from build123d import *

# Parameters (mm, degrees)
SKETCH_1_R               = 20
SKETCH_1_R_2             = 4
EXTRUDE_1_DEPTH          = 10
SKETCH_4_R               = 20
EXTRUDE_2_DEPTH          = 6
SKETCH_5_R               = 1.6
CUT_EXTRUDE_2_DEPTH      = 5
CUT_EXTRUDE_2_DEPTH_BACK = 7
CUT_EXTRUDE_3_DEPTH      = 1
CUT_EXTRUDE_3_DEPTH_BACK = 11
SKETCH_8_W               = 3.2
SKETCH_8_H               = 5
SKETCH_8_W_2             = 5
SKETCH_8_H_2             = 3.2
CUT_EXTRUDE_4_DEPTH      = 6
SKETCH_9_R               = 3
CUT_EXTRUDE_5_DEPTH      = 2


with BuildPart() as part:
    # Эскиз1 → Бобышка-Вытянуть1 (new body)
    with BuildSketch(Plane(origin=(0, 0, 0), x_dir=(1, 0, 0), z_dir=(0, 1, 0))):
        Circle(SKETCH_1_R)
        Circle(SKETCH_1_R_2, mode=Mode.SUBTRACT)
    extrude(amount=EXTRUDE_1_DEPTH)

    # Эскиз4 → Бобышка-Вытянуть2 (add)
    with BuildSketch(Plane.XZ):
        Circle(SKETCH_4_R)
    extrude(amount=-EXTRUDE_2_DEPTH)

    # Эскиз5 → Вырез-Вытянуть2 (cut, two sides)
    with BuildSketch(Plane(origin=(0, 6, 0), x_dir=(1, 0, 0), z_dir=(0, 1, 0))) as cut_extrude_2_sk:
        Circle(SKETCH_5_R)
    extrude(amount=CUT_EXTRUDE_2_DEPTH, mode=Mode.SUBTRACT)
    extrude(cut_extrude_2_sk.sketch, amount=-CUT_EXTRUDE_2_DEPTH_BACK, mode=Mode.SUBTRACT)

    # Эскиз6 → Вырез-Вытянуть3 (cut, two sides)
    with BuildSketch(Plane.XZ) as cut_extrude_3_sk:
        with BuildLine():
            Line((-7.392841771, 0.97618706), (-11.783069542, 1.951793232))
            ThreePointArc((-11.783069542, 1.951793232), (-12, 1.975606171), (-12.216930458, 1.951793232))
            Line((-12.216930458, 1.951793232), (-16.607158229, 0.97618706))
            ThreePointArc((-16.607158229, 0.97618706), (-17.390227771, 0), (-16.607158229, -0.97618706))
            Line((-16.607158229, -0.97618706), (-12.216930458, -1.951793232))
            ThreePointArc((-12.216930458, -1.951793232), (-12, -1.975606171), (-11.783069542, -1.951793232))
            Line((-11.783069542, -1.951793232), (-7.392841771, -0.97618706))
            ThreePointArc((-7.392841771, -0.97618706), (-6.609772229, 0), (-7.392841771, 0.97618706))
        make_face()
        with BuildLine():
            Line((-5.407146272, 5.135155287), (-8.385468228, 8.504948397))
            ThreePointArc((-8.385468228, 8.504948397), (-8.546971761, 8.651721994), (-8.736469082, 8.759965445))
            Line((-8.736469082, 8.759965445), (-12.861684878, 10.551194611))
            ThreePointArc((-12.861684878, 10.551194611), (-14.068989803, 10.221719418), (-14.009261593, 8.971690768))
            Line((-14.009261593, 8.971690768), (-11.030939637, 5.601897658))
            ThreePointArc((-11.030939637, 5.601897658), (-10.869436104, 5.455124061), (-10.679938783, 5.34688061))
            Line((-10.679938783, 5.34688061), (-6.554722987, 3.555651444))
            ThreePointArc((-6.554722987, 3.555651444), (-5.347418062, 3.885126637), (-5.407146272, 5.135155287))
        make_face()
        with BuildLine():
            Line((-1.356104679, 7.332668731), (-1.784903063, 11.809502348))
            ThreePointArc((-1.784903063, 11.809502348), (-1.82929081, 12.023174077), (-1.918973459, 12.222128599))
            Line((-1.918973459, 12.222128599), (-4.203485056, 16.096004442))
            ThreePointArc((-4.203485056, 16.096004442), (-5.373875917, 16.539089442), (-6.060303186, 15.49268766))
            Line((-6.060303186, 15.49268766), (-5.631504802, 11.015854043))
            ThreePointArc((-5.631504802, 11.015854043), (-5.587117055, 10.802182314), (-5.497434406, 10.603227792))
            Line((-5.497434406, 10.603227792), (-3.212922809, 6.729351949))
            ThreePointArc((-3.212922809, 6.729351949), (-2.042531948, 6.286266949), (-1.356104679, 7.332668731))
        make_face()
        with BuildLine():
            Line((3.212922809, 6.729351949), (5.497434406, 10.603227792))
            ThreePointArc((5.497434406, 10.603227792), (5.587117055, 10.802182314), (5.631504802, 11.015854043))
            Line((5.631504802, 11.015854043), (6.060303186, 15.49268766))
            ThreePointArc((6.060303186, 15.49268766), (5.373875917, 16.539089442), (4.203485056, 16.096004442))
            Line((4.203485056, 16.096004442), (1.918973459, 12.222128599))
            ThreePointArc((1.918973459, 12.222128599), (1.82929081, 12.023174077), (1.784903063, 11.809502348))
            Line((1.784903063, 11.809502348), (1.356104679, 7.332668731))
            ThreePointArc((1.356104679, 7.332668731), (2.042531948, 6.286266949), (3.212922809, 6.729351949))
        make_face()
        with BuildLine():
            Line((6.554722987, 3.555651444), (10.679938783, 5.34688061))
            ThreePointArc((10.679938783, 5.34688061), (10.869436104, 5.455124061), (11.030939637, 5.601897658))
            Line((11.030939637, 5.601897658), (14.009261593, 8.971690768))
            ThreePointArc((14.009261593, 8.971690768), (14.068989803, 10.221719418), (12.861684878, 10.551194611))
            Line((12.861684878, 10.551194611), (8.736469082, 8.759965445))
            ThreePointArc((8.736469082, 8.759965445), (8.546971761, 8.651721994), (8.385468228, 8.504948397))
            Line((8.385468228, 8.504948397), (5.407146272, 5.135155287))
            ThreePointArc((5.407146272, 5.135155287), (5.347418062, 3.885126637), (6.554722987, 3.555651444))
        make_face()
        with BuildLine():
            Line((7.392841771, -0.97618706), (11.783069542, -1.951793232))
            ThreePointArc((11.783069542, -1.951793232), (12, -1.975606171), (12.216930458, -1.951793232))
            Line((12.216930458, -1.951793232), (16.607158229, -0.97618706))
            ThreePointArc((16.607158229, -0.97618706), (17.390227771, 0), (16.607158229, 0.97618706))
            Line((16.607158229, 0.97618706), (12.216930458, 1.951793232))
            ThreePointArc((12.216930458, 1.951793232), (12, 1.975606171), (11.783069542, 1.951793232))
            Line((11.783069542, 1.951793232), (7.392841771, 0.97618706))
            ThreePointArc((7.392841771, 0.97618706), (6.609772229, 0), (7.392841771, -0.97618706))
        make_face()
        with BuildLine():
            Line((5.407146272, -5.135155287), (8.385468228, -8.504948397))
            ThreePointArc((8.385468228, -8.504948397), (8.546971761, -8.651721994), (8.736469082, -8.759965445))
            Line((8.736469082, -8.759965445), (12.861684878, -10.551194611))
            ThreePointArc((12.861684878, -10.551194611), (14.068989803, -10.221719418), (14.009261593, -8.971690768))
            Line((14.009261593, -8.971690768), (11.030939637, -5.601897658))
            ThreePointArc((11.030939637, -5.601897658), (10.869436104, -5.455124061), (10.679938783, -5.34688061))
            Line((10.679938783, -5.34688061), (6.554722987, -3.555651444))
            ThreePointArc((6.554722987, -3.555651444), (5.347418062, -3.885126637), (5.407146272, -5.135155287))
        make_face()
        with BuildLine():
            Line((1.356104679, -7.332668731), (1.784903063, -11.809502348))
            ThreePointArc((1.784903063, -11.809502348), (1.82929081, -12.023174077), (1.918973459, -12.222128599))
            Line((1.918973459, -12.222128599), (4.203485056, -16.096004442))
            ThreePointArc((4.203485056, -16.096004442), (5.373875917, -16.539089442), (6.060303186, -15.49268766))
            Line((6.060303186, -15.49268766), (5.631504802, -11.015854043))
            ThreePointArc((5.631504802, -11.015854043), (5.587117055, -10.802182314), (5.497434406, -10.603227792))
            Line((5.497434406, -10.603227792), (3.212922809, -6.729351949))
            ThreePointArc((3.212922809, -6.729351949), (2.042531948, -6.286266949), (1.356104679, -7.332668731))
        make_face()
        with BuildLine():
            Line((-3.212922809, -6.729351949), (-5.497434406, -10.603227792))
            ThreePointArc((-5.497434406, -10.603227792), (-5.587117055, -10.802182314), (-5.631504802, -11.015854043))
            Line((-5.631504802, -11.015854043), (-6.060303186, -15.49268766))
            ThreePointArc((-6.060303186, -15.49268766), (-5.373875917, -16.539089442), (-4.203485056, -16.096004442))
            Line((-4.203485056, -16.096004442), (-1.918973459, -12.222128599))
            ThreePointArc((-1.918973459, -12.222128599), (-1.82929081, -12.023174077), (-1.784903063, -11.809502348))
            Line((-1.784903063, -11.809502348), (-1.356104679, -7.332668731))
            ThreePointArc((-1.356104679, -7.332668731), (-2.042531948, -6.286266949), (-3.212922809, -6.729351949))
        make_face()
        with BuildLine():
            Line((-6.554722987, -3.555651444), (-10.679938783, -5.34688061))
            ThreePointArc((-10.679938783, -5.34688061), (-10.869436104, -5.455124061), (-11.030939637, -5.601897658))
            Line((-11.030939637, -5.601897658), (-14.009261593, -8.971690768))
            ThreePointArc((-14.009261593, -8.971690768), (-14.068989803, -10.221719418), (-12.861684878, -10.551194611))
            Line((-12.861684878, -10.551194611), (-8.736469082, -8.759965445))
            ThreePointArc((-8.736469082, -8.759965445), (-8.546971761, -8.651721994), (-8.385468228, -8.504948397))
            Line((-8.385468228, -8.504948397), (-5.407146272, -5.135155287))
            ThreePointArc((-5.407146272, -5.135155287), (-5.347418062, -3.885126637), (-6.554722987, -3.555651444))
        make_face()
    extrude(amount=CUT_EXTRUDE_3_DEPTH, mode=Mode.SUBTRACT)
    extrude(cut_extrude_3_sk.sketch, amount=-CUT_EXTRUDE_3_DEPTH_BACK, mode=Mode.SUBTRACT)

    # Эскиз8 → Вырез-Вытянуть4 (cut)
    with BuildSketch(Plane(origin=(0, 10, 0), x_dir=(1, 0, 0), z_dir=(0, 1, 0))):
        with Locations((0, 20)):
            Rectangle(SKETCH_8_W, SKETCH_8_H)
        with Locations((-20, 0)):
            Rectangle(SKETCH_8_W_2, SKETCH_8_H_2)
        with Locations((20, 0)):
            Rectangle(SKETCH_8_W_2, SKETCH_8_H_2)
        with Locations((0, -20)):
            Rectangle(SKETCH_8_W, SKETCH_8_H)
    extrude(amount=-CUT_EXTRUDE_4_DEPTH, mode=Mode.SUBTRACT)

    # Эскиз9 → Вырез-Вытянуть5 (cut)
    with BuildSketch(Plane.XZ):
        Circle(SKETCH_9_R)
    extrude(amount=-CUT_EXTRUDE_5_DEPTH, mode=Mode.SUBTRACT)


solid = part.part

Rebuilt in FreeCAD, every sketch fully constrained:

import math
import FreeCAD as App
import Part
import Sketcher
Q = App.Units.Quantity


def add_polygon(sketch, points):
    """Adds a closed chain of lines whose ends are joined by coincident constraints."""
    first, n = sketch.GeometryCount, len(points)
    for a, b in zip(points, points[1:] + points[:1]):
        sketch.addGeometry(Part.LineSegment(App.Vector(*a, 0), App.Vector(*b, 0)), False)
    for i in range(n):
        sketch.addConstraint(Sketcher.Constraint("Coincident", first + i, 2, first + (i + 1) % n, 1))

doc = App.newDocument("Part")
body = doc.addObject("PartDesign::Body", "Body")

# Sketch on XZ plane
sketch1 = body.newObject("Sketcher::SketchObject", "Sketch")
sketch1.AttachmentSupport = (doc.getObject("XZ_Plane"), [""])
sketch1.MapMode = "FlatFace"
sketch1.addGeometry(Part.Circle(App.Vector(0, 0, 0), App.Vector(0, 0, 1), 20), False)
sketch1.addGeometry(Part.Circle(App.Vector(0, 0, 0), App.Vector(0, 0, 1), 4), False)
sketch1.addConstraint(Sketcher.Constraint("Coincident", 0, 3, -1, 1))
sketch1.addConstraint(Sketcher.Constraint("Coincident", 1, 3, -1, 1))
sketch1.addConstraint(Sketcher.Constraint("Diameter", 0, Q("40 mm")))
sketch1.addConstraint(Sketcher.Constraint("Diameter", 1, Q("8 mm")))
pad1 = body.newObject("PartDesign::Pad", "Pad")
pad1.Profile = sketch1
pad1.Length = 10
pad1.Reversed = True

# Sketch on XZ plane
sketch2 = body.newObject("Sketcher::SketchObject", "Sketch001")
sketch2.AttachmentSupport = (doc.getObject("XZ_Plane"), [""])
sketch2.MapMode = "FlatFace"
sketch2.addGeometry(Part.Circle(App.Vector(0, 0, 0), App.Vector(0, 0, 1), 20), False)
sketch2.addConstraint(Sketcher.Constraint("Coincident", 0, 3, -1, 1))
sketch2.addConstraint(Sketcher.Constraint("Diameter", 0, Q("40 mm")))
pad2 = body.newObject("PartDesign::Pad", "Pad001")
pad2.Profile = sketch2
pad2.Length = 6
pad2.Reversed = True

# Sketch on XZ plane
sketch3 = body.newObject("Sketcher::SketchObject", "Sketch002")
sketch3.AttachmentSupport = (doc.getObject("XZ_Plane"), [""])
sketch3.MapMode = "FlatFace"
sketch3.AttachmentOffset = App.Placement(App.Vector(0, 0, -6), App.Rotation())
sketch3.addGeometry(Part.Circle(App.Vector(0, 0, 0), App.Vector(0, 0, 1), 1.6), False)
sketch3.addConstraint(Sketcher.Constraint("Coincident", 0, 3, -1, 1))
sketch3.addConstraint(Sketcher.Constraint("Diameter", 0, Q("3.2 mm")))
pocket1 = body.newObject("PartDesign::Pocket", "Pocket")
pocket1.Profile = sketch3
pocket1.Type = "ThroughAll"
pocket1.Midplane = True

# Sketch on XZ plane
sketch4 = body.newObject("Sketcher::SketchObject", "Sketch003")
sketch4.AttachmentSupport = (doc.getObject("XZ_Plane"), [""])
sketch4.MapMode = "FlatFace"
sketch4.addGeometry(Part.LineSegment(App.Vector(-7.39, 0.98, 0), App.Vector(-11.78, 1.95, 0)), False)
sketch4.addGeometry(Part.ArcOfCircle(Part.Circle(App.Vector(-12, 0.98, 0), App.Vector(0, 0, 1), 1), math.radians(77), math.radians(103)), False)
sketch4.addGeometry(Part.LineSegment(App.Vector(-12.22, 1.95, 0), App.Vector(-16.61, 0.98, 0)), False)
sketch4.addGeometry(Part.ArcOfCircle(Part.Circle(App.Vector(-16.39, 0, 0), App.Vector(0, 0, 1), 1), math.radians(103), math.radians(257)), False)
sketch4.addGeometry(Part.LineSegment(App.Vector(-16.61, -0.98, 0), App.Vector(-12.22, -1.95, 0)), False)
sketch4.addGeometry(Part.ArcOfCircle(Part.Circle(App.Vector(-12, -0.98, 0), App.Vector(0, 0, 1), 1), math.radians(-103), math.radians(-77)), False)
sketch4.addGeometry(Part.LineSegment(App.Vector(-11.78, -1.95, 0), App.Vector(-7.39, -0.98, 0)), False)
sketch4.addGeometry(Part.ArcOfCircle(Part.Circle(App.Vector(-7.61, 0, 0), App.Vector(0, 0, 1), 1), math.radians(-77), math.radians(77)), False)
sketch4.addGeometry(Part.LineSegment(App.Vector(-5.41, 5.14, 0), App.Vector(-8.39, 8.5, 0)), False)
sketch4.addGeometry(Part.ArcOfCircle(Part.Circle(App.Vector(-9.13, 7.84, 0), App.Vector(0, 0, 1), 1), math.radians(41), math.radians(67)), False)
sketch4.addGeometry(Part.LineSegment(App.Vector(-8.74, 8.76, 0), App.Vector(-12.86, 10.55, 0)), False)
sketch4.addGeometry(Part.ArcOfCircle(Part.Circle(App.Vector(-13.26, 9.63, 0), App.Vector(0, 0, 1), 1), math.radians(67), math.radians(221)), False)
sketch4.addGeometry(Part.LineSegment(App.Vector(-14.01, 8.97, 0), App.Vector(-11.03, 5.6, 0)), False)
sketch4.addGeometry(Part.ArcOfCircle(Part.Circle(App.Vector(-10.28, 6.26, 0), App.Vector(0, 0, 1), 1), math.radians(-139), math.radians(-113)), False)
sketch4.addGeometry(Part.LineSegment(App.Vector(-10.68, 5.35, 0), App.Vector(-6.55, 3.56, 0)), False)
sketch4.addGeometry(Part.ArcOfCircle(Part.Circle(App.Vector(-6.16, 4.47, 0), App.Vector(0, 0, 1), 1), math.radians(-113), math.radians(41)), False)
sketch4.addGeometry(Part.LineSegment(App.Vector(-1.36, 7.33, 0), App.Vector(-1.78, 11.81, 0)), False)
sketch4.addGeometry(Part.ArcOfCircle(Part.Circle(App.Vector(-2.78, 11.71, 0), App.Vector(0, 0, 1), 1), math.radians(5), math.radians(31)), False)
sketch4.addGeometry(Part.LineSegment(App.Vector(-1.92, 12.22, 0), App.Vector(-4.2, 16.1, 0)), False)
sketch4.addGeometry(Part.ArcOfCircle(Part.Circle(App.Vector(-5.06, 15.59, 0), App.Vector(0, 0, 1), 1), math.radians(31), math.radians(185)), False)
sketch4.addGeometry(Part.LineSegment(App.Vector(-6.06, 15.49, 0), App.Vector(-5.63, 11.02, 0)), False)
sketch4.addGeometry(Part.ArcOfCircle(Part.Circle(App.Vector(-4.64, 11.11, 0), App.Vector(0, 0, 1), 1), math.radians(-175), math.radians(-149)), False)
sketch4.addGeometry(Part.LineSegment(App.Vector(-5.5, 10.6, 0), App.Vector(-3.21, 6.73, 0)), False)
sketch4.addGeometry(Part.ArcOfCircle(Part.Circle(App.Vector(-2.35, 7.24, 0), App.Vector(0, 0, 1), 1), math.radians(-149), math.radians(5)), False)
sketch4.addGeometry(Part.LineSegment(App.Vector(3.21, 6.73, 0), App.Vector(5.5, 10.6, 0)), False)
sketch4.addGeometry(Part.ArcOfCircle(Part.Circle(App.Vector(4.64, 11.11, 0), App.Vector(0, 0, 1), 1), math.radians(-31), math.radians(-5)), False)
sketch4.addGeometry(Part.LineSegment(App.Vector(5.63, 11.02, 0), App.Vector(6.06, 15.49, 0)), False)
sketch4.addGeometry(Part.ArcOfCircle(Part.Circle(App.Vector(5.06, 15.59, 0), App.Vector(0, 0, 1), 1), math.radians(-5), math.radians(149)), False)
sketch4.addGeometry(Part.LineSegment(App.Vector(4.2, 16.1, 0), App.Vector(1.92, 12.22, 0)), False)
sketch4.addGeometry(Part.ArcOfCircle(Part.Circle(App.Vector(2.78, 11.71, 0), App.Vector(0, 0, 1), 1), math.radians(149), math.radians(175)), False)
sketch4.addGeometry(Part.LineSegment(App.Vector(1.78, 11.81, 0), App.Vector(1.36, 7.33, 0)), False)
sketch4.addGeometry(Part.ArcOfCircle(Part.Circle(App.Vector(2.35, 7.24, 0), App.Vector(0, 0, 1), 1), math.radians(175), math.radians(329)), False)
sketch4.addGeometry(Part.LineSegment(App.Vector(6.55, 3.56, 0), App.Vector(10.68, 5.35, 0)), False)
sketch4.addGeometry(Part.ArcOfCircle(Part.Circle(App.Vector(10.28, 6.26, 0), App.Vector(0, 0, 1), 1), math.radians(-67), math.radians(-41)), False)
sketch4.addGeometry(Part.LineSegment(App.Vector(11.03, 5.6, 0), App.Vector(14.01, 8.97, 0)), False)
sketch4.addGeometry(Part.ArcOfCircle(Part.Circle(App.Vector(13.26, 9.63, 0), App.Vector(0, 0, 1), 1), math.radians(-41), math.radians(113)), False)
sketch4.addGeometry(Part.LineSegment(App.Vector(12.86, 10.55, 0), App.Vector(8.74, 8.76, 0)), False)
sketch4.addGeometry(Part.ArcOfCircle(Part.Circle(App.Vector(9.13, 7.84, 0), App.Vector(0, 0, 1), 1), math.radians(113), math.radians(139)), False)
sketch4.addGeometry(Part.LineSegment(App.Vector(8.39, 8.5, 0), App.Vector(5.41, 5.14, 0)), False)
sketch4.addGeometry(Part.ArcOfCircle(Part.Circle(App.Vector(6.16, 4.47, 0), App.Vector(0, 0, 1), 1), math.radians(139), math.radians(293)), False)
sketch4.addGeometry(Part.LineSegment(App.Vector(7.39, -0.98, 0), App.Vector(11.78, -1.95, 0)), False)
sketch4.addGeometry(Part.ArcOfCircle(Part.Circle(App.Vector(12, -0.98, 0), App.Vector(0, 0, 1), 1), math.radians(-103), math.radians(-77)), False)
sketch4.addGeometry(Part.LineSegment(App.Vector(12.22, -1.95, 0), App.Vector(16.61, -0.98, 0)), False)
sketch4.addGeometry(Part.ArcOfCircle(Part.Circle(App.Vector(16.39, 0, 0), App.Vector(0, 0, 1), 1), math.radians(-77), math.radians(77)), False)
sketch4.addGeometry(Part.LineSegment(App.Vector(16.61, 0.98, 0), App.Vector(12.22, 1.95, 0)), False)
sketch4.addGeometry(Part.ArcOfCircle(Part.Circle(App.Vector(12, 0.98, 0), App.Vector(0, 0, 1), 1), math.radians(77), math.radians(103)), False)
sketch4.addGeometry(Part.LineSegment(App.Vector(11.78, 1.95, 0), App.Vector(7.39, 0.98, 0)), False)
sketch4.addGeometry(Part.ArcOfCircle(Part.Circle(App.Vector(7.61, 0, 0), App.Vector(0, 0, 1), 1), math.radians(103), math.radians(257)), False)
sketch4.addGeometry(Part.LineSegment(App.Vector(5.41, -5.14, 0), App.Vector(8.39, -8.5, 0)), False)
sketch4.addGeometry(Part.ArcOfCircle(Part.Circle(App.Vector(9.13, -7.84, 0), App.Vector(0, 0, 1), 1), math.radians(-139), math.radians(-113)), False)
sketch4.addGeometry(Part.LineSegment(App.Vector(8.74, -8.76, 0), App.Vector(12.86, -10.55, 0)), False)
sketch4.addGeometry(Part.ArcOfCircle(Part.Circle(App.Vector(13.26, -9.63, 0), App.Vector(0, 0, 1), 1), math.radians(-113), math.radians(41)), False)
sketch4.addGeometry(Part.LineSegment(App.Vector(14.01, -8.97, 0), App.Vector(11.03, -5.6, 0)), False)
sketch4.addGeometry(Part.ArcOfCircle(Part.Circle(App.Vector(10.28, -6.26, 0), App.Vector(0, 0, 1), 1), math.radians(41), math.radians(67)), False)
sketch4.addGeometry(Part.LineSegment(App.Vector(10.68, -5.35, 0), App.Vector(6.55, -3.56, 0)), False)
sketch4.addGeometry(Part.ArcOfCircle(Part.Circle(App.Vector(6.16, -4.47, 0), App.Vector(0, 0, 1), 1), math.radians(67), math.radians(221)), False)
sketch4.addGeometry(Part.LineSegment(App.Vector(1.36, -7.33, 0), App.Vector(1.78, -11.81, 0)), False)
sketch4.addGeometry(Part.ArcOfCircle(Part.Circle(App.Vector(2.78, -11.71, 0), App.Vector(0, 0, 1), 1), math.radians(-175), math.radians(-149)), False)
sketch4.addGeometry(Part.LineSegment(App.Vector(1.92, -12.22, 0), App.Vector(4.2, -16.1, 0)), False)
sketch4.addGeometry(Part.ArcOfCircle(Part.Circle(App.Vector(5.06, -15.59, 0), App.Vector(0, 0, 1), 1), math.radians(-149), math.radians(5)), False)
sketch4.addGeometry(Part.LineSegment(App.Vector(6.06, -15.49, 0), App.Vector(5.63, -11.02, 0)), False)
sketch4.addGeometry(Part.ArcOfCircle(Part.Circle(App.Vector(4.64, -11.11, 0), App.Vector(0, 0, 1), 1), math.radians(5), math.radians(31)), False)
sketch4.addGeometry(Part.LineSegment(App.Vector(5.5, -10.6, 0), App.Vector(3.21, -6.73, 0)), False)
sketch4.addGeometry(Part.ArcOfCircle(Part.Circle(App.Vector(2.35, -7.24, 0), App.Vector(0, 0, 1), 1), math.radians(31), math.radians(185)), False)
sketch4.addGeometry(Part.LineSegment(App.Vector(-3.21, -6.73, 0), App.Vector(-5.5, -10.6, 0)), False)
sketch4.addGeometry(Part.ArcOfCircle(Part.Circle(App.Vector(-4.64, -11.11, 0), App.Vector(0, 0, 1), 1), math.radians(149), math.radians(175)), False)
sketch4.addGeometry(Part.LineSegment(App.Vector(-5.63, -11.02, 0), App.Vector(-6.06, -15.49, 0)), False)
sketch4.addGeometry(Part.ArcOfCircle(Part.Circle(App.Vector(-5.06, -15.59, 0), App.Vector(0, 0, 1), 1), math.radians(175), math.radians(329)), False)
sketch4.addGeometry(Part.LineSegment(App.Vector(-4.2, -16.1, 0), App.Vector(-1.92, -12.22, 0)), False)
sketch4.addGeometry(Part.ArcOfCircle(Part.Circle(App.Vector(-2.78, -11.71, 0), App.Vector(0, 0, 1), 1), math.radians(-31), math.radians(-5)), False)
sketch4.addGeometry(Part.LineSegment(App.Vector(-1.78, -11.81, 0), App.Vector(-1.36, -7.33, 0)), False)
sketch4.addGeometry(Part.ArcOfCircle(Part.Circle(App.Vector(-2.35, -7.24, 0), App.Vector(0, 0, 1), 1), math.radians(-5), math.radians(149)), False)
sketch4.addGeometry(Part.LineSegment(App.Vector(-6.55, -3.56, 0), App.Vector(-10.68, -5.35, 0)), False)
sketch4.addGeometry(Part.ArcOfCircle(Part.Circle(App.Vector(-10.28, -6.26, 0), App.Vector(0, 0, 1), 1), math.radians(113), math.radians(139)), False)
sketch4.addGeometry(Part.LineSegment(App.Vector(-11.03, -5.6, 0), App.Vector(-14.01, -8.97, 0)), False)
sketch4.addGeometry(Part.ArcOfCircle(Part.Circle(App.Vector(-13.26, -9.63, 0), App.Vector(0, 0, 1), 1), math.radians(139), math.radians(293)), False)
sketch4.addGeometry(Part.LineSegment(App.Vector(-12.86, -10.55, 0), App.Vector(-8.74, -8.76, 0)), False)
sketch4.addGeometry(Part.ArcOfCircle(Part.Circle(App.Vector(-9.13, -7.84, 0), App.Vector(0, 0, 1), 1), math.radians(-67), math.radians(-41)), False)
sketch4.addGeometry(Part.LineSegment(App.Vector(-8.39, -8.5, 0), App.Vector(-5.41, -5.14, 0)), False)
sketch4.addGeometry(Part.ArcOfCircle(Part.Circle(App.Vector(-6.16, -4.47, 0), App.Vector(0, 0, 1), 1), math.radians(-41), math.radians(113)), False)
sketch4.addConstraint(Sketcher.Constraint("Tangent", 0, 2, 1, 1))
sketch4.addConstraint(Sketcher.Constraint("Tangent", 1, 2, 2, 1))
sketch4.addConstraint(Sketcher.Constraint("Tangent", 2, 2, 3, 1))
sketch4.addConstraint(Sketcher.Constraint("Tangent", 3, 2, 4, 1))
sketch4.addConstraint(Sketcher.Constraint("Tangent", 4, 2, 5, 1))
sketch4.addConstraint(Sketcher.Constraint("Tangent", 5, 2, 6, 1))
sketch4.addConstraint(Sketcher.Constraint("Tangent", 6, 2, 7, 1))
sketch4.addConstraint(Sketcher.Constraint("Tangent", 7, 2, 0, 1))
sketch4.addConstraint(Sketcher.Constraint("Tangent", 8, 2, 9, 1))
sketch4.addConstraint(Sketcher.Constraint("Tangent", 9, 2, 10, 1))
sketch4.addConstraint(Sketcher.Constraint("Tangent", 10, 2, 11, 1))
sketch4.addConstraint(Sketcher.Constraint("Tangent", 11, 2, 12, 1))
sketch4.addConstraint(Sketcher.Constraint("Tangent", 12, 2, 13, 1))
sketch4.addConstraint(Sketcher.Constraint("Tangent", 13, 2, 14, 1))
sketch4.addConstraint(Sketcher.Constraint("Tangent", 14, 2, 15, 1))
sketch4.addConstraint(Sketcher.Constraint("Tangent", 15, 2, 8, 1))
sketch4.addConstraint(Sketcher.Constraint("Tangent", 16, 2, 17, 1))
sketch4.addConstraint(Sketcher.Constraint("Tangent", 17, 2, 18, 1))
sketch4.addConstraint(Sketcher.Constraint("Tangent", 18, 2, 19, 1))
sketch4.addConstraint(Sketcher.Constraint("Tangent", 19, 2, 20, 1))
sketch4.addConstraint(Sketcher.Constraint("Tangent", 20, 2, 21, 1))
sketch4.addConstraint(Sketcher.Constraint("Tangent", 21, 2, 22, 1))
sketch4.addConstraint(Sketcher.Constraint("Tangent", 22, 2, 23, 1))
sketch4.addConstraint(Sketcher.Constraint("Tangent", 23, 2, 16, 1))
sketch4.addConstraint(Sketcher.Constraint("Tangent", 24, 2, 25, 1))
sketch4.addConstraint(Sketcher.Constraint("Tangent", 25, 2, 26, 1))
sketch4.addConstraint(Sketcher.Constraint("Tangent", 26, 2, 27, 1))
sketch4.addConstraint(Sketcher.Constraint("Tangent", 27, 2, 28, 1))
sketch4.addConstraint(Sketcher.Constraint("Tangent", 28, 2, 29, 1))
sketch4.addConstraint(Sketcher.Constraint("Tangent", 29, 2, 30, 1))
sketch4.addConstraint(Sketcher.Constraint("Tangent", 30, 2, 31, 1))
sketch4.addConstraint(Sketcher.Constraint("Tangent", 31, 2, 24, 1))
sketch4.addConstraint(Sketcher.Constraint("Tangent", 32, 2, 33, 1))
sketch4.addConstraint(Sketcher.Constraint("Tangent", 33, 2, 34, 1))
sketch4.addConstraint(Sketcher.Constraint("Tangent", 34, 2, 35, 1))
sketch4.addConstraint(Sketcher.Constraint("Tangent", 35, 2, 36, 1))
sketch4.addConstraint(Sketcher.Constraint("Tangent", 36, 2, 37, 1))
sketch4.addConstraint(Sketcher.Constraint("Tangent", 37, 2, 38, 1))
sketch4.addConstraint(Sketcher.Constraint("Tangent", 38, 2, 39, 1))
sketch4.addConstraint(Sketcher.Constraint("Tangent", 39, 2, 32, 1))
sketch4.addConstraint(Sketcher.Constraint("Tangent", 40, 2, 41, 1))
sketch4.addConstraint(Sketcher.Constraint("Tangent", 41, 2, 42, 1))
sketch4.addConstraint(Sketcher.Constraint("Tangent", 42, 2, 43, 1))
sketch4.addConstraint(Sketcher.Constraint("Tangent", 43, 2, 44, 1))
sketch4.addConstraint(Sketcher.Constraint("Tangent", 44, 2, 45, 1))
sketch4.addConstraint(Sketcher.Constraint("Tangent", 45, 2, 46, 1))
sketch4.addConstraint(Sketcher.Constraint("Tangent", 46, 2, 47, 1))
sketch4.addConstraint(Sketcher.Constraint("Tangent", 47, 2, 40, 1))
sketch4.addConstraint(Sketcher.Constraint("Tangent", 48, 2, 49, 1))
sketch4.addConstraint(Sketcher.Constraint("Tangent", 49, 2, 50, 1))
sketch4.addConstraint(Sketcher.Constraint("Tangent", 50, 2, 51, 1))
sketch4.addConstraint(Sketcher.Constraint("Tangent", 51, 2, 52, 1))
sketch4.addConstraint(Sketcher.Constraint("Tangent", 52, 2, 53, 1))
sketch4.addConstraint(Sketcher.Constraint("Tangent", 53, 2, 54, 1))
sketch4.addConstraint(Sketcher.Constraint("Tangent", 54, 2, 55, 1))
sketch4.addConstraint(Sketcher.Constraint("Tangent", 55, 2, 48, 1))
sketch4.addConstraint(Sketcher.Constraint("Tangent", 56, 2, 57, 1))
sketch4.addConstraint(Sketcher.Constraint("Tangent", 57, 2, 58, 1))
sketch4.addConstraint(Sketcher.Constraint("Tangent", 58, 2, 59, 1))
sketch4.addConstraint(Sketcher.Constraint("Tangent", 59, 2, 60, 1))
sketch4.addConstraint(Sketcher.Constraint("Tangent", 60, 2, 61, 1))
sketch4.addConstraint(Sketcher.Constraint("Tangent", 61, 2, 62, 1))
sketch4.addConstraint(Sketcher.Constraint("Tangent", 62, 2, 63, 1))
sketch4.addConstraint(Sketcher.Constraint("Tangent", 63, 2, 56, 1))
sketch4.addConstraint(Sketcher.Constraint("Tangent", 64, 2, 65, 1))
sketch4.addConstraint(Sketcher.Constraint("Tangent", 65, 2, 66, 1))
sketch4.addConstraint(Sketcher.Constraint("Tangent", 66, 2, 67, 1))
sketch4.addConstraint(Sketcher.Constraint("Tangent", 67, 2, 68, 1))
sketch4.addConstraint(Sketcher.Constraint("Tangent", 68, 2, 69, 1))
sketch4.addConstraint(Sketcher.Constraint("Tangent", 69, 2, 70, 1))
sketch4.addConstraint(Sketcher.Constraint("Tangent", 70, 2, 71, 1))
sketch4.addConstraint(Sketcher.Constraint("Tangent", 71, 2, 64, 1))
sketch4.addConstraint(Sketcher.Constraint("Tangent", 72, 2, 73, 1))
sketch4.addConstraint(Sketcher.Constraint("Tangent", 73, 2, 74, 1))
sketch4.addConstraint(Sketcher.Constraint("Tangent", 74, 2, 75, 1))
sketch4.addConstraint(Sketcher.Constraint("Tangent", 75, 2, 76, 1))
sketch4.addConstraint(Sketcher.Constraint("Tangent", 76, 2, 77, 1))
sketch4.addConstraint(Sketcher.Constraint("Tangent", 77, 2, 78, 1))
sketch4.addConstraint(Sketcher.Constraint("Tangent", 78, 2, 79, 1))
sketch4.addConstraint(Sketcher.Constraint("Tangent", 79, 2, 72, 1))
sketch4.addConstraint(Sketcher.Constraint("Equal", 1, 3))
sketch4.addConstraint(Sketcher.Constraint("Equal", 3, 5))
sketch4.addConstraint(Sketcher.Constraint("Equal", 5, 7))
sketch4.addConstraint(Sketcher.Constraint("Equal", 7, 9))
sketch4.addConstraint(Sketcher.Constraint("Equal", 9, 11))
sketch4.addConstraint(Sketcher.Constraint("Equal", 11, 13))
sketch4.addConstraint(Sketcher.Constraint("Equal", 13, 15))
sketch4.addConstraint(Sketcher.Constraint("Equal", 15, 17))
sketch4.addConstraint(Sketcher.Constraint("Equal", 17, 19))
sketch4.addConstraint(Sketcher.Constraint("Equal", 19, 21))
sketch4.addConstraint(Sketcher.Constraint("Equal", 21, 23))
sketch4.addConstraint(Sketcher.Constraint("Equal", 23, 25))
sketch4.addConstraint(Sketcher.Constraint("Equal", 25, 27))
sketch4.addConstraint(Sketcher.Constraint("Equal", 27, 29))
sketch4.addConstraint(Sketcher.Constraint("Equal", 29, 31))
sketch4.addConstraint(Sketcher.Constraint("Equal", 31, 33))
sketch4.addConstraint(Sketcher.Constraint("Equal", 33, 35))
sketch4.addConstraint(Sketcher.Constraint("Equal", 35, 37))
sketch4.addConstraint(Sketcher.Constraint("Equal", 37, 39))
sketch4.addConstraint(Sketcher.Constraint("Equal", 39, 41))
sketch4.addConstraint(Sketcher.Constraint("Equal", 41, 43))
sketch4.addConstraint(Sketcher.Constraint("Equal", 43, 45))
sketch4.addConstraint(Sketcher.Constraint("Equal", 45, 47))
sketch4.addConstraint(Sketcher.Constraint("Equal", 47, 49))
sketch4.addConstraint(Sketcher.Constraint("Equal", 49, 51))
sketch4.addConstraint(Sketcher.Constraint("Equal", 51, 53))
sketch4.addConstraint(Sketcher.Constraint("Equal", 53, 55))
sketch4.addConstraint(Sketcher.Constraint("Equal", 55, 57))
sketch4.addConstraint(Sketcher.Constraint("Equal", 57, 59))
sketch4.addConstraint(Sketcher.Constraint("Equal", 59, 61))
sketch4.addConstraint(Sketcher.Constraint("Equal", 61, 63))
sketch4.addConstraint(Sketcher.Constraint("Equal", 63, 65))
sketch4.addConstraint(Sketcher.Constraint("Equal", 65, 67))
sketch4.addConstraint(Sketcher.Constraint("Equal", 67, 69))
sketch4.addConstraint(Sketcher.Constraint("Equal", 69, 71))
sketch4.addConstraint(Sketcher.Constraint("Equal", 71, 73))
sketch4.addConstraint(Sketcher.Constraint("Equal", 73, 75))
sketch4.addConstraint(Sketcher.Constraint("Equal", 75, 77))
sketch4.addConstraint(Sketcher.Constraint("Equal", 77, 79))
sketch4.addConstraint(Sketcher.Constraint("Symmetric", 1, 3, 41, 3, -1, 1))
sketch4.addConstraint(Sketcher.Constraint("Symmetric", 3, 3, 43, 3, -1, 1))
sketch4.addConstraint(Sketcher.Constraint("Symmetric", 5, 3, 45, 3, -1, 1))
sketch4.addConstraint(Sketcher.Constraint("Symmetric", 7, 3, 47, 3, -1, 1))
sketch4.addConstraint(Sketcher.Constraint("Symmetric", 9, 3, 49, 3, -1, 1))
sketch4.addConstraint(Sketcher.Constraint("Symmetric", 11, 3, 51, 3, -1, 1))
sketch4.addConstraint(Sketcher.Constraint("Symmetric", 13, 3, 53, 3, -1, 1))
sketch4.addConstraint(Sketcher.Constraint("Symmetric", 15, 3, 55, 3, -1, 1))
sketch4.addConstraint(Sketcher.Constraint("Symmetric", 17, 3, 57, 3, -1, 1))
sketch4.addConstraint(Sketcher.Constraint("Symmetric", 19, 3, 59, 3, -1, 1))
sketch4.addConstraint(Sketcher.Constraint("Symmetric", 21, 3, 61, 3, -1, 1))
sketch4.addConstraint(Sketcher.Constraint("Symmetric", 23, 3, 63, 3, -1, 1))
sketch4.addConstraint(Sketcher.Constraint("Symmetric", 25, 3, 65, 3, -1, 1))
sketch4.addConstraint(Sketcher.Constraint("Symmetric", 27, 3, 67, 3, -1, 1))
sketch4.addConstraint(Sketcher.Constraint("Symmetric", 29, 3, 69, 3, -1, 1))
sketch4.addConstraint(Sketcher.Constraint("Symmetric", 31, 3, 71, 3, -1, 1))
sketch4.addConstraint(Sketcher.Constraint("Symmetric", 33, 3, 73, 3, -1, 1))
sketch4.addConstraint(Sketcher.Constraint("Symmetric", 35, 3, 75, 3, -1, 1))
sketch4.addConstraint(Sketcher.Constraint("Symmetric", 37, 3, 77, 3, -1, 1))
sketch4.addConstraint(Sketcher.Constraint("Symmetric", 39, 3, 79, 3, -1, 1))
sketch4.addConstraint(Sketcher.Constraint("Symmetric", 21, 3, 25, 3, -2))
sketch4.addConstraint(Sketcher.Constraint("Symmetric", 19, 3, 27, 3, -2))
sketch4.addConstraint(Sketcher.Constraint("Symmetric", 17, 3, 29, 3, -2))
sketch4.addConstraint(Sketcher.Constraint("Symmetric", 23, 3, 31, 3, -2))
sketch4.addConstraint(Sketcher.Constraint("Symmetric", 13, 3, 33, 3, -2))
sketch4.addConstraint(Sketcher.Constraint("Symmetric", 11, 3, 35, 3, -2))
sketch4.addConstraint(Sketcher.Constraint("Symmetric", 9, 3, 37, 3, -2))
sketch4.addConstraint(Sketcher.Constraint("Symmetric", 15, 3, 39, 3, -2))
sketch4.addConstraint(Sketcher.Constraint("Symmetric", 5, 3, 41, 3, -2))
sketch4.addConstraint(Sketcher.Constraint("PointOnObject", 3, 3, -1))
sketch4.addConstraint(Sketcher.Constraint("PointOnObject", 7, 3, -1))
sketch4.addConstraint(Sketcher.Constraint("Parallel", 0, 4))
sketch4.addConstraint(Sketcher.Constraint("Parallel", 8, 12))
sketch4.addConstraint(Sketcher.Constraint("Parallel", 10, 14))
sketch4.addConstraint(Sketcher.Constraint("Parallel", 16, 20))
sketch4.addConstraint(Sketcher.Constraint("Parallel", 18, 22))
sketch4.addConstraint(Sketcher.Constraint("Equal", 6, 8))
sketch4.addConstraint(Sketcher.Constraint("Equal", 8, 10))
sketch4.addConstraint(Sketcher.Constraint("Equal", 14, 16))
sketch4.addConstraint(Sketcher.Constraint("Equal", 16, 18))
sketch4.addConstraint(Sketcher.Constraint("Radius", 1, Q("1 mm")))
sketch4.addConstraint(Sketcher.Constraint("DistanceX", 1, 3, -1, 1, Q("12 mm")))
sketch4.addConstraint(Sketcher.Constraint("DistanceY", -1, 1, 21, 3, Q("11.111199 mm")))
sketch4.addConstraint(Sketcher.Constraint("DistanceX", 13, 3, -1, 1, Q("10.281651 mm")))
sketch4.addConstraint(Sketcher.Constraint("DistanceY", -1, 1, 13, 3, Q("6.264141 mm")))
sketch4.addConstraint(Sketcher.Constraint("DistanceY", -1, 1, 15, 3, Q("4.472912 mm")))
sketch4.addConstraint(Sketcher.Constraint("DistanceX", 19, 3, -1, 1, Q("5.064859 mm")))
sketch4.addConstraint(Sketcher.Constraint("DistanceX", 21, 3, -1, 1, Q("4.636061 mm")))
sketch4.addConstraint(Sketcher.Constraint("DistanceX", 23, 3, -1, 1, Q("2.351549 mm")))
sketch4.addConstraint(Sketcher.Constraint("DistanceX", 0, 2, -1, 1, Q("11.78307 mm")))
sketch4.addConstraint(Sketcher.Constraint("DistanceX", 2, 2, -1, 1, Q("16.607158 mm")))
sketch4.addConstraint(Sketcher.Constraint("DistanceX", 8, 2, -1, 1, Q("8.385468 mm")))
pocket2 = body.newObject("PartDesign::Pocket", "Pocket001")
pocket2.Profile = sketch4
pocket2.Type = "ThroughAll"
pocket2.Midplane = True

# Sketch on XZ plane
sketch5 = body.newObject("Sketcher::SketchObject", "Sketch004")
sketch5.AttachmentSupport = (doc.getObject("XZ_Plane"), [""])
sketch5.MapMode = "FlatFace"
sketch5.AttachmentOffset = App.Placement(App.Vector(0, 0, -10), App.Rotation())
add_polygon(sketch5, [(-1.6, -22.5), (-1.6, -17.5), (1.6, -17.5), (1.6, -22.5)])  # lines 0-3
add_polygon(sketch5, [(-22.5, -1.6), (-22.5, 1.6), (-17.5, 1.6), (-17.5, -1.6)])  # lines 4-7
add_polygon(sketch5, [(17.5, -1.6), (17.5, 1.6), (22.5, 1.6), (22.5, -1.6)])  # lines 8-11
add_polygon(sketch5, [(-1.6, 17.5), (-1.6, 22.5), (1.6, 22.5), (1.6, 17.5)])  # lines 12-15
sketch5.addConstraint(Sketcher.Constraint("Vertical", 0))
sketch5.addConstraint(Sketcher.Constraint("Horizontal", 1))
sketch5.addConstraint(Sketcher.Constraint("Vertical", 2))
sketch5.addConstraint(Sketcher.Constraint("Horizontal", 3))
sketch5.addConstraint(Sketcher.Constraint("Vertical", 4))
sketch5.addConstraint(Sketcher.Constraint("Horizontal", 5))
sketch5.addConstraint(Sketcher.Constraint("Vertical", 6))
sketch5.addConstraint(Sketcher.Constraint("Horizontal", 7))
sketch5.addConstraint(Sketcher.Constraint("Vertical", 8))
sketch5.addConstraint(Sketcher.Constraint("Horizontal", 9))
sketch5.addConstraint(Sketcher.Constraint("Vertical", 10))
sketch5.addConstraint(Sketcher.Constraint("Horizontal", 11))
sketch5.addConstraint(Sketcher.Constraint("Vertical", 12))
sketch5.addConstraint(Sketcher.Constraint("Horizontal", 13))
sketch5.addConstraint(Sketcher.Constraint("Vertical", 14))
sketch5.addConstraint(Sketcher.Constraint("Horizontal", 15))
sketch5.addConstraint(Sketcher.Constraint("Symmetric", 6, 2, 8, 2, -1, 1))
sketch5.addConstraint(Sketcher.Constraint("Symmetric", 4, 2, 10, 2, -1, 1))
sketch5.addConstraint(Sketcher.Constraint("Symmetric", 2, 2, 12, 2, -1, 1))
sketch5.addConstraint(Sketcher.Constraint("Symmetric", 0, 2, 14, 2, -1, 1))
sketch5.addConstraint(Sketcher.Constraint("Horizontal", 5, 2, 8, 2))
sketch5.addConstraint(Sketcher.Constraint("Vertical", 3, 2, 12, 2))
sketch5.addConstraint(Sketcher.Constraint("Equal", 11, 0))
sketch5.addConstraint(Sketcher.Constraint("Equal", 15, 4))
sketch5.addConstraint(Sketcher.Constraint("DistanceX", 5, 1, 5, 2, Q("5 mm")))
sketch5.addConstraint(Sketcher.Constraint("DistanceX", 1, 1, 1, 2, Q("3.2 mm")))
sketch5.addConstraint(Sketcher.Constraint("DistanceX", 5, 2, 8, 2, Q("35 mm")))
sketch5.addConstraint(Sketcher.Constraint("DistanceY", 0, 2, -1, 1, Q("17.5 mm")))
pocket3 = body.newObject("PartDesign::Pocket", "Pocket002")
pocket3.Profile = sketch5
pocket3.Length = 6
pocket3.Reversed = True

# Sketch on XZ plane
sketch6 = body.newObject("Sketcher::SketchObject", "Sketch005")
sketch6.AttachmentSupport = (doc.getObject("XZ_Plane"), [""])
sketch6.MapMode = "FlatFace"
sketch6.addGeometry(Part.Circle(App.Vector(0, 0, 0), App.Vector(0, 0, 1), 3), False)
sketch6.addConstraint(Sketcher.Constraint("Coincident", 0, 3, -1, 1))
sketch6.addConstraint(Sketcher.Constraint("Diameter", 0, Q("6 mm")))
pocket4 = body.newObject("PartDesign::Pocket", "Pocket003")
pocket4.Profile = sketch6
pocket4.Length = 2

doc.recompute()
